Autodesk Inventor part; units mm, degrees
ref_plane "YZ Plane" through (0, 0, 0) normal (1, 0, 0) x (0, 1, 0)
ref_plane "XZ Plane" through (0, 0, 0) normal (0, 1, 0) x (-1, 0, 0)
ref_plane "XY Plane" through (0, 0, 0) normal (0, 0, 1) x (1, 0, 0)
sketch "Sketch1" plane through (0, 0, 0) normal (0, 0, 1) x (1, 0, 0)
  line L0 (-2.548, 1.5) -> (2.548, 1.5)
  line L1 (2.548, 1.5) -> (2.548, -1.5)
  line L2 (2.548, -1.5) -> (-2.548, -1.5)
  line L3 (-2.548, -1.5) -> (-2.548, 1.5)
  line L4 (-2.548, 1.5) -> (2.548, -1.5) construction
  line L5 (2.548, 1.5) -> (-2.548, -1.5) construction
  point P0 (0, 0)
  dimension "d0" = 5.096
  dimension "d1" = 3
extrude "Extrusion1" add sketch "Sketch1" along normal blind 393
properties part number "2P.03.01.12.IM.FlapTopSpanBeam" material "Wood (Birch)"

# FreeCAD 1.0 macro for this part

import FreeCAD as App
import Part
import Sketcher
Q = App.Units.Quantity


def add_polygon(sketch, points):
    """Adds a closed chain of lines whose ends are joined by coincident constraints."""
    first, n = sketch.GeometryCount, len(points)
    for a, b in zip(points, points[1:] + points[:1]):
        sketch.addGeometry(Part.LineSegment(App.Vector(*a, 0), App.Vector(*b, 0)), False)
    for i in range(n):
        sketch.addConstraint(Sketcher.Constraint("Coincident", first + i, 2, first + (i + 1) % n, 1))

doc = App.newDocument("Part")
body = doc.addObject("PartDesign::Body", "Body")

# Sketch on XY plane
sketch1 = doc.addObject("Sketcher::SketchObject", "Sketch")
body.addObject(sketch1)
sketch1.AttachmentSupport = (doc.XY_Plane, [""])
sketch1.MapMode = "FlatFace"
add_polygon(sketch1, [(2.548, 1.5), (-2.548, 1.5), (-2.548, -1.5), (2.548, -1.5)])  # lines 0-3
sketch1.addConstraint([
    Sketcher.Constraint("Horizontal", 0),
    Sketcher.Constraint("Vertical", 1),
    Sketcher.Constraint("Horizontal", 2),
    Sketcher.Constraint("Vertical", 3),
    Sketcher.Constraint("Symmetric", 0, 2, 2, 2, -1, 1),
    Sketcher.Constraint("DistanceY", 1, 2, 1, 1, Q("3 mm")),
    Sketcher.Constraint("DistanceX", 0, 2, 0, 1, Q("5.096 mm")),
])
pad1 = doc.addObject("PartDesign::Pad", "Pad")
body.addObject(pad1)
pad1.Profile = sketch1
pad1.Length = 393

doc.recompute()
